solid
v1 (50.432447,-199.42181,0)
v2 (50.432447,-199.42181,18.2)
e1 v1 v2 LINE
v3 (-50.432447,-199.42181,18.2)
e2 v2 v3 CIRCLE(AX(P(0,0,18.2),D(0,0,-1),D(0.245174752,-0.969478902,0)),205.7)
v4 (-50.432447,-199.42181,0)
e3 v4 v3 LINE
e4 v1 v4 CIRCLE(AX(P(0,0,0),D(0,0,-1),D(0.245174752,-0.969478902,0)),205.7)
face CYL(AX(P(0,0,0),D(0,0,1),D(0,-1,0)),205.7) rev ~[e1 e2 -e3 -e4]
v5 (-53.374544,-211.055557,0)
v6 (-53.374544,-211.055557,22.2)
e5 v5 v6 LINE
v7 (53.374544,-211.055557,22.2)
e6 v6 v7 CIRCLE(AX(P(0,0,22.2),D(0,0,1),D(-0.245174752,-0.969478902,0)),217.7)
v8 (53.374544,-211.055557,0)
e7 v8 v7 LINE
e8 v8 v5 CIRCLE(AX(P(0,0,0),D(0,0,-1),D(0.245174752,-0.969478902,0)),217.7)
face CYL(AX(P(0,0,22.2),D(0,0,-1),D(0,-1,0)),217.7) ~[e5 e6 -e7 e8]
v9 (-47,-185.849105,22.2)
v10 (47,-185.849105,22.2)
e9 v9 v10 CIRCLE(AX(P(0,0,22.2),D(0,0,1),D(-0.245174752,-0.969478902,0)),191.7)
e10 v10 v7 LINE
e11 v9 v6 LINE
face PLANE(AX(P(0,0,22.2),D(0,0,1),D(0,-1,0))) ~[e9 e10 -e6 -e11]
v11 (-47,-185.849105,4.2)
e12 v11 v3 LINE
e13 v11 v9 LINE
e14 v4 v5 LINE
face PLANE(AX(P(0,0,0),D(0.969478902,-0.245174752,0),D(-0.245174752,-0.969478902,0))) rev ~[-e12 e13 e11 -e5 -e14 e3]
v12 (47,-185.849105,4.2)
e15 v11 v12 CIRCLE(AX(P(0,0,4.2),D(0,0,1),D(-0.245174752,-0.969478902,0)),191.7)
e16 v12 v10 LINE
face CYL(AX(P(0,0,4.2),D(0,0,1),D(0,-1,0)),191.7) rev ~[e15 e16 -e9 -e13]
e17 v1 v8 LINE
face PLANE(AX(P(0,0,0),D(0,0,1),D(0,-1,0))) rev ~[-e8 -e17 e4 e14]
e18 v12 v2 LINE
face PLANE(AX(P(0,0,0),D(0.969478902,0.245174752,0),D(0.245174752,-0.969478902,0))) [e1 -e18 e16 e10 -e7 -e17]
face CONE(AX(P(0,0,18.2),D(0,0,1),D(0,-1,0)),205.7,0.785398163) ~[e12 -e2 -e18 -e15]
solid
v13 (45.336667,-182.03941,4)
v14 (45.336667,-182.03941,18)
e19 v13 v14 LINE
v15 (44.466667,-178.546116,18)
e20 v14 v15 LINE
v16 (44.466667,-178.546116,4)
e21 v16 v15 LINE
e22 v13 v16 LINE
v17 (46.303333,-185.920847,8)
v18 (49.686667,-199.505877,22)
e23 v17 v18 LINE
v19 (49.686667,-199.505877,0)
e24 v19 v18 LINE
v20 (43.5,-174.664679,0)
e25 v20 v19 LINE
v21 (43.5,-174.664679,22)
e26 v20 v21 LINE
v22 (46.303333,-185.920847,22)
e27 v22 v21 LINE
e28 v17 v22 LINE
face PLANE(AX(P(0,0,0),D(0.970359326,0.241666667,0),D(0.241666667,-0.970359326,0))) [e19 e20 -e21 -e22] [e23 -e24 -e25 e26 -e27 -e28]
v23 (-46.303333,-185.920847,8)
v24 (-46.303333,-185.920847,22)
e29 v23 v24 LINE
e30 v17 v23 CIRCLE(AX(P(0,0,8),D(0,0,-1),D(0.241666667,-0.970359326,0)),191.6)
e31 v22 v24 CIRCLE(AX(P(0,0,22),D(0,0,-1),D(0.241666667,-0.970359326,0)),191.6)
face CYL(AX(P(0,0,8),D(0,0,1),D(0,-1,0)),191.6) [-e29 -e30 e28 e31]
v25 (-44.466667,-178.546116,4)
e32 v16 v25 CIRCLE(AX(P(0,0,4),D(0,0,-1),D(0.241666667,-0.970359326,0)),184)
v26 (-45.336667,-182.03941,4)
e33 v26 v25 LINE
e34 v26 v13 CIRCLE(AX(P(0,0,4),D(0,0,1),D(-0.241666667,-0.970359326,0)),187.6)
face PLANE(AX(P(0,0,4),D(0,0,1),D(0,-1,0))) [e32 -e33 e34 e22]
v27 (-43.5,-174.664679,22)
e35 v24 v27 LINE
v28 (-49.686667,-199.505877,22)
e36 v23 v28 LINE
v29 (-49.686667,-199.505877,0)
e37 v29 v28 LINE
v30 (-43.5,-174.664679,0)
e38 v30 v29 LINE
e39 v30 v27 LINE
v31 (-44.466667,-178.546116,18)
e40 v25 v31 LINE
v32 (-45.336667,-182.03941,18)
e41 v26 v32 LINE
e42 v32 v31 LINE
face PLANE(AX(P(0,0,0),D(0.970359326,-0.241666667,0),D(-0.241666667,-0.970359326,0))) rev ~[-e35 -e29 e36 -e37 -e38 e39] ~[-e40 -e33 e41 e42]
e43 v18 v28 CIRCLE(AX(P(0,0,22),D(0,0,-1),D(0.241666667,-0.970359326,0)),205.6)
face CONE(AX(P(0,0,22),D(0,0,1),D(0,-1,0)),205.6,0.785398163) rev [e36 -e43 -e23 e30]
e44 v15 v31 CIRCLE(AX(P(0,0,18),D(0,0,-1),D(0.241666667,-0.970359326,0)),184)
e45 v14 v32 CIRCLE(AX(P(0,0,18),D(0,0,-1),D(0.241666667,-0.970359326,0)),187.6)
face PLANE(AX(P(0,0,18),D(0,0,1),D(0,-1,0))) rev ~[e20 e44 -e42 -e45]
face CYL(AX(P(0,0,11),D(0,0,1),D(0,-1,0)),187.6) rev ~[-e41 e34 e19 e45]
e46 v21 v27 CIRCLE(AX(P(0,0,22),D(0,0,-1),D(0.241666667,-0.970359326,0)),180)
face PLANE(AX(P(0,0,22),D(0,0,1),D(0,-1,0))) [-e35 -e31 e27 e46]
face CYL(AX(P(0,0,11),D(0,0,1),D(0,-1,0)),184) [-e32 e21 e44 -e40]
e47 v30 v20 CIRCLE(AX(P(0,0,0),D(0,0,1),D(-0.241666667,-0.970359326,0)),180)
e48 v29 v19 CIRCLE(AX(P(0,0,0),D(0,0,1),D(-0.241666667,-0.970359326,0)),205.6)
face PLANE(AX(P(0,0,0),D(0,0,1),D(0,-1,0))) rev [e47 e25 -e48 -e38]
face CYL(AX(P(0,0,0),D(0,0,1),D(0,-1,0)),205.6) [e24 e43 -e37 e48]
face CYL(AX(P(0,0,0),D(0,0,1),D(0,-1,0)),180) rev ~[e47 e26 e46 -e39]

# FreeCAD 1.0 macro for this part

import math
import FreeCAD as App
import Part
import Sketcher

V = App.Vector
Q = App.Units.Quantity

doc = App.newDocument("Part")
params = doc.addObject("Spreadsheet::Sheet", "Params")
for row, (alias, value) in enumerate([
    ("sketch1_height", "22 mm"),
    ("sketch1_height2", "14 mm"),
    ("sketch1_width", "25.6 mm"),
    ("sketch1_width2", "3.6 mm"),
    ("revolution_angle", "360 deg"),
    ("sketch2_radius", "205.6 mm"),
    ("sketch3_width", "26 mm"),
    ("sketch3_width2", "12 mm"),
    ("sketch3_height", "18 mm"),
    ("sketch3_height2", "22.2 mm"),
    ("revolution2_angle", "360 deg"),
    ("sketch4_radius", "217.7 mm"),
], start=1):
    params.set(f"A{row}", alias)
    params.set(f"B{row}", "=" + value)
    params.setAlias(f"B{row}", alias)

body = doc.addObject("PartDesign::Body", "Body")

# Sketch on YZ plane
sketch1 = doc.addObject("Sketcher::SketchObject", "Sketch")
body.addObject(sketch1)
sketch1.AttachmentSupport = (doc.YZ_Plane, [""])
sketch1.MapMode = "FlatFace"
sketch1.addGeometry([
    Part.LineSegment(V(-205.6, 22, 0), V(-205.6, 0, 0)),  # 0
    Part.LineSegment(V(-205.6, 0, 0), V(-180, 0, 0)),  # 1
    Part.LineSegment(V(-180, 0, 0), V(-180, 22, 0)),  # 2
    Part.LineSegment(V(-180, 22, 0), V(-191.6, 22, 0)),  # 3
    Part.LineSegment(V(-191.6, 22, 0), V(-191.6, 8, 0)),  # 4
    Part.LineSegment(V(-191.6, 8, 0), V(-205.6, 22, 0)),  # 5
    Part.LineSegment(V(-187.6, 4, 0), V(-187.6, 18, 0)),  # 6
    Part.LineSegment(V(-187.6, 18, 0), V(-184, 18, 0)),  # 7
    Part.LineSegment(V(-184, 18, 0), V(-184, 4, 0)),  # 8
    Part.LineSegment(V(-184, 4, 0), V(-187.6, 4, 0)),  # 9
], False)
sketch1.addConstraint([
    Sketcher.Constraint("Coincident", 0, 2, 1, 1),
    Sketcher.Constraint("Coincident", 1, 2, 2, 1),
    Sketcher.Constraint("Coincident", 2, 2, 3, 1),
    Sketcher.Constraint("Coincident", 3, 2, 4, 1),
    Sketcher.Constraint("Coincident", 4, 2, 5, 1),
    Sketcher.Constraint("Coincident", 5, 2, 0, 1),
    Sketcher.Constraint("Coincident", 6, 2, 7, 1),
    Sketcher.Constraint("Coincident", 7, 2, 8, 1),
    Sketcher.Constraint("Coincident", 8, 2, 9, 1),
    Sketcher.Constraint("Coincident", 9, 2, 6, 1),
    Sketcher.Constraint("Vertical", 0),
    Sketcher.Constraint("Horizontal", 1),
    Sketcher.Constraint("Vertical", 2),
    Sketcher.Constraint("Horizontal", 3),
    Sketcher.Constraint("Vertical", 4),
    Sketcher.Constraint("Vertical", 6),
    Sketcher.Constraint("Horizontal", 7),
    Sketcher.Constraint("Vertical", 8),
    Sketcher.Constraint("Horizontal", 9),
    Sketcher.Constraint("PointOnObject", 0, 2, -1),
    Sketcher.Constraint("Horizontal", 3, 2, 5, 2),
    Sketcher.Constraint("Equal", 4, 6),
    Sketcher.Constraint("DistanceY", 0, 2, 0, 1, 22.0),
    Sketcher.Constraint("DistanceY", 4, 2, 4, 1, 14.0),
    Sketcher.Constraint("Angle", 5, Q("135 deg")),
    Sketcher.Constraint("DistanceX", 1, 1, 1, 2, 25.6),
    Sketcher.Constraint("DistanceX", 7, 1, 7, 2, 3.6),
    Sketcher.Constraint("DistanceX", 1, 2, -1, 1, 180.0),
    Sketcher.Constraint("DistanceY", -1, 1, 6, 2, 18.0),
    Sketcher.Constraint("DistanceX", 7, 2, -1, 1, 184.0),
])
sketch1.setExpression("Constraints[22]", "Params.sketch1_height")
sketch1.setExpression("Constraints[23]", "Params.sketch1_height2")
sketch1.setExpression("Constraints[25]", "Params.sketch1_width")
sketch1.setExpression("Constraints[26]", "Params.sketch1_width2")
revolution = doc.addObject("PartDesign::Revolution", "Revolution")
body.addObject(revolution)
revolution.Profile = sketch1
revolution.ReferenceAxis = (sketch1, ["V_Axis"])
revolution.setExpression("Angle", "Params.revolution_angle")

# Sketch on XY plane
sketch2 = doc.addObject("Sketcher::SketchObject", "Sketch001")
body.addObject(sketch2)
sketch2.AttachmentSupport = (doc.XY_Plane, [""])
sketch2.MapMode = "FlatFace"
sketch2.addGeometry([
    Part.ArcOfCircle(Part.Circle(V(0, 0, 0), V(0, 0, 1), 205.6), math.radians(-76.015071), math.radians(256.015071)),
    Part.LineSegment(V(-49.686667, -199.505877, 0), V(0, 0, 0)),
    Part.LineSegment(V(0, 0, 0), V(49.686667, -199.505877, 0)),
], False)
sketch2.addConstraint([
    Sketcher.Constraint("Coincident", 0, 2, 1, 1),
    Sketcher.Constraint("Coincident", 1, 2, 2, 1),
    Sketcher.Constraint("Coincident", 2, 2, 0, 1),
    Sketcher.Constraint("Coincident", 0, 3, -1, 1),
    Sketcher.Constraint("Coincident", 1, 2, -1, 1),
    Sketcher.Constraint("Horizontal", 0, 2, 2, 2),
    Sketcher.Constraint("Radius", 0, 205.6),
    Sketcher.Constraint("DistanceX", 0, 2, -1, 1, 49.686667),
])
sketch2.setExpression("Constraints[6]", "Params.sketch2_radius")
pocket1 = doc.addObject("PartDesign::Pocket", "Pocket")
body.addObject(pocket1)
pocket1.Profile = sketch2
pocket1.Type = "ThroughAll"
pocket1.Reversed = True
body2 = doc.addObject("PartDesign::Body", "Body001")

# Sketch on YZ plane
sketch3 = doc.addObject("Sketcher::SketchObject", "Sketch002")
body2.addObject(sketch3)
sketch3.AttachmentSupport = (doc.getObject("YZ_Plane001"), [""])
sketch3.MapMode = "FlatFace"
sketch3.addGeometry([
    Part.LineSegment(V(-205.7, 18.2, 0), V(-191.7, 4.2, 0)),  # 0
    Part.LineSegment(V(-191.7, 4.2, 0), V(-191.7, 22.2, 0)),  # 1
    Part.LineSegment(V(-191.7, 22.2, 0), V(-217.7, 22.2, 0)),  # 2
    Part.LineSegment(V(-217.7, 22.2, 0), V(-217.7, 0, 0)),  # 3
    Part.LineSegment(V(-217.7, 0, 0), V(-205.7, 0, 0)),  # 4
    Part.LineSegment(V(-205.7, 0, 0), V(-205.7, 18.2, 0)),  # 5
], False)
sketch3.addConstraint([
    Sketcher.Constraint("Coincident", 0, 2, 1, 1),
    Sketcher.Constraint("Coincident", 1, 2, 2, 1),
    Sketcher.Constraint("Coincident", 2, 2, 3, 1),
    Sketcher.Constraint("Coincident", 3, 2, 4, 1),
    Sketcher.Constraint("Coincident", 4, 2, 5, 1),
    Sketcher.Constraint("Coincident", 5, 2, 0, 1),
    Sketcher.Constraint("Vertical", 1),
    Sketcher.Constraint("Horizontal", 2),
    Sketcher.Constraint("Vertical", 3),
    Sketcher.Constraint("Horizontal", 4),
    Sketcher.Constraint("Vertical", 5),
    Sketcher.Constraint("PointOnObject", 3, 2, -1),
    Sketcher.Constraint("DistanceX", 2, 2, 2, 1, 26.0),
    Sketcher.Constraint("DistanceX", 4, 1, 4, 2, 12.0),
    Sketcher.Constraint("DistanceY", 1, 1, 1, 2, 18.0),
    Sketcher.Constraint("Angle", 0, Q("-45 deg")),
    Sketcher.Constraint("DistanceY", 3, 2, 3, 1, 22.2),
    Sketcher.Constraint("DistanceX", 0, 2, -1, 1, 191.7),
])
sketch3.setExpression("Constraints[12]", "Params.sketch3_width")
sketch3.setExpression("Constraints[13]", "Params.sketch3_width2")
sketch3.setExpression("Constraints[14]", "Params.sketch3_height")
sketch3.setExpression("Constraints[16]", "Params.sketch3_height2")
revolution2 = doc.addObject("PartDesign::Revolution", "Revolution001")
body2.addObject(revolution2)
revolution2.Profile = sketch3
revolution2.ReferenceAxis = (sketch3, ["V_Axis"])
revolution2.setExpression("Angle", "Params.revolution2_angle")

# Sketch on XY plane
sketch4 = doc.addObject("Sketcher::SketchObject", "Sketch003")
body2.addObject(sketch4)
sketch4.AttachmentSupport = (doc.getObject("XY_Plane001"), [""])
sketch4.MapMode = "FlatFace"
sketch4.addGeometry([
    Part.ArcOfCircle(Part.Circle(V(0, 0, 0), V(0, 0, 1), 217.7), math.radians(-75.807839), math.radians(255.807839)),
    Part.LineSegment(V(-53.374544, -211.055557, 0), V(0, 0, 0)),
    Part.LineSegment(V(0, 0, 0), V(53.374544, -211.055557, 0)),
], False)
sketch4.addConstraint([
    Sketcher.Constraint("Coincident", 0, 2, 1, 1),
    Sketcher.Constraint("Coincident", 1, 2, 2, 1),
    Sketcher.Constraint("Coincident", 2, 2, 0, 1),
    Sketcher.Constraint("Coincident", 0, 3, -1, 1),
    Sketcher.Constraint("Coincident", 1, 2, -1, 1),
    Sketcher.Constraint("Horizontal", 0, 2, 2, 2),
    Sketcher.Constraint("Radius", 0, 217.7),
    Sketcher.Constraint("DistanceX", 0, 2, -1, 1, 53.374544),
])
sketch4.setExpression("Constraints[6]", "Params.sketch4_radius")
pocket2 = doc.addObject("PartDesign::Pocket", "Pocket001")
body2.addObject(pocket2)
pocket2.Profile = sketch4
pocket2.Type = "ThroughAll"
pocket2.Reversed = True

doc.recompute()
